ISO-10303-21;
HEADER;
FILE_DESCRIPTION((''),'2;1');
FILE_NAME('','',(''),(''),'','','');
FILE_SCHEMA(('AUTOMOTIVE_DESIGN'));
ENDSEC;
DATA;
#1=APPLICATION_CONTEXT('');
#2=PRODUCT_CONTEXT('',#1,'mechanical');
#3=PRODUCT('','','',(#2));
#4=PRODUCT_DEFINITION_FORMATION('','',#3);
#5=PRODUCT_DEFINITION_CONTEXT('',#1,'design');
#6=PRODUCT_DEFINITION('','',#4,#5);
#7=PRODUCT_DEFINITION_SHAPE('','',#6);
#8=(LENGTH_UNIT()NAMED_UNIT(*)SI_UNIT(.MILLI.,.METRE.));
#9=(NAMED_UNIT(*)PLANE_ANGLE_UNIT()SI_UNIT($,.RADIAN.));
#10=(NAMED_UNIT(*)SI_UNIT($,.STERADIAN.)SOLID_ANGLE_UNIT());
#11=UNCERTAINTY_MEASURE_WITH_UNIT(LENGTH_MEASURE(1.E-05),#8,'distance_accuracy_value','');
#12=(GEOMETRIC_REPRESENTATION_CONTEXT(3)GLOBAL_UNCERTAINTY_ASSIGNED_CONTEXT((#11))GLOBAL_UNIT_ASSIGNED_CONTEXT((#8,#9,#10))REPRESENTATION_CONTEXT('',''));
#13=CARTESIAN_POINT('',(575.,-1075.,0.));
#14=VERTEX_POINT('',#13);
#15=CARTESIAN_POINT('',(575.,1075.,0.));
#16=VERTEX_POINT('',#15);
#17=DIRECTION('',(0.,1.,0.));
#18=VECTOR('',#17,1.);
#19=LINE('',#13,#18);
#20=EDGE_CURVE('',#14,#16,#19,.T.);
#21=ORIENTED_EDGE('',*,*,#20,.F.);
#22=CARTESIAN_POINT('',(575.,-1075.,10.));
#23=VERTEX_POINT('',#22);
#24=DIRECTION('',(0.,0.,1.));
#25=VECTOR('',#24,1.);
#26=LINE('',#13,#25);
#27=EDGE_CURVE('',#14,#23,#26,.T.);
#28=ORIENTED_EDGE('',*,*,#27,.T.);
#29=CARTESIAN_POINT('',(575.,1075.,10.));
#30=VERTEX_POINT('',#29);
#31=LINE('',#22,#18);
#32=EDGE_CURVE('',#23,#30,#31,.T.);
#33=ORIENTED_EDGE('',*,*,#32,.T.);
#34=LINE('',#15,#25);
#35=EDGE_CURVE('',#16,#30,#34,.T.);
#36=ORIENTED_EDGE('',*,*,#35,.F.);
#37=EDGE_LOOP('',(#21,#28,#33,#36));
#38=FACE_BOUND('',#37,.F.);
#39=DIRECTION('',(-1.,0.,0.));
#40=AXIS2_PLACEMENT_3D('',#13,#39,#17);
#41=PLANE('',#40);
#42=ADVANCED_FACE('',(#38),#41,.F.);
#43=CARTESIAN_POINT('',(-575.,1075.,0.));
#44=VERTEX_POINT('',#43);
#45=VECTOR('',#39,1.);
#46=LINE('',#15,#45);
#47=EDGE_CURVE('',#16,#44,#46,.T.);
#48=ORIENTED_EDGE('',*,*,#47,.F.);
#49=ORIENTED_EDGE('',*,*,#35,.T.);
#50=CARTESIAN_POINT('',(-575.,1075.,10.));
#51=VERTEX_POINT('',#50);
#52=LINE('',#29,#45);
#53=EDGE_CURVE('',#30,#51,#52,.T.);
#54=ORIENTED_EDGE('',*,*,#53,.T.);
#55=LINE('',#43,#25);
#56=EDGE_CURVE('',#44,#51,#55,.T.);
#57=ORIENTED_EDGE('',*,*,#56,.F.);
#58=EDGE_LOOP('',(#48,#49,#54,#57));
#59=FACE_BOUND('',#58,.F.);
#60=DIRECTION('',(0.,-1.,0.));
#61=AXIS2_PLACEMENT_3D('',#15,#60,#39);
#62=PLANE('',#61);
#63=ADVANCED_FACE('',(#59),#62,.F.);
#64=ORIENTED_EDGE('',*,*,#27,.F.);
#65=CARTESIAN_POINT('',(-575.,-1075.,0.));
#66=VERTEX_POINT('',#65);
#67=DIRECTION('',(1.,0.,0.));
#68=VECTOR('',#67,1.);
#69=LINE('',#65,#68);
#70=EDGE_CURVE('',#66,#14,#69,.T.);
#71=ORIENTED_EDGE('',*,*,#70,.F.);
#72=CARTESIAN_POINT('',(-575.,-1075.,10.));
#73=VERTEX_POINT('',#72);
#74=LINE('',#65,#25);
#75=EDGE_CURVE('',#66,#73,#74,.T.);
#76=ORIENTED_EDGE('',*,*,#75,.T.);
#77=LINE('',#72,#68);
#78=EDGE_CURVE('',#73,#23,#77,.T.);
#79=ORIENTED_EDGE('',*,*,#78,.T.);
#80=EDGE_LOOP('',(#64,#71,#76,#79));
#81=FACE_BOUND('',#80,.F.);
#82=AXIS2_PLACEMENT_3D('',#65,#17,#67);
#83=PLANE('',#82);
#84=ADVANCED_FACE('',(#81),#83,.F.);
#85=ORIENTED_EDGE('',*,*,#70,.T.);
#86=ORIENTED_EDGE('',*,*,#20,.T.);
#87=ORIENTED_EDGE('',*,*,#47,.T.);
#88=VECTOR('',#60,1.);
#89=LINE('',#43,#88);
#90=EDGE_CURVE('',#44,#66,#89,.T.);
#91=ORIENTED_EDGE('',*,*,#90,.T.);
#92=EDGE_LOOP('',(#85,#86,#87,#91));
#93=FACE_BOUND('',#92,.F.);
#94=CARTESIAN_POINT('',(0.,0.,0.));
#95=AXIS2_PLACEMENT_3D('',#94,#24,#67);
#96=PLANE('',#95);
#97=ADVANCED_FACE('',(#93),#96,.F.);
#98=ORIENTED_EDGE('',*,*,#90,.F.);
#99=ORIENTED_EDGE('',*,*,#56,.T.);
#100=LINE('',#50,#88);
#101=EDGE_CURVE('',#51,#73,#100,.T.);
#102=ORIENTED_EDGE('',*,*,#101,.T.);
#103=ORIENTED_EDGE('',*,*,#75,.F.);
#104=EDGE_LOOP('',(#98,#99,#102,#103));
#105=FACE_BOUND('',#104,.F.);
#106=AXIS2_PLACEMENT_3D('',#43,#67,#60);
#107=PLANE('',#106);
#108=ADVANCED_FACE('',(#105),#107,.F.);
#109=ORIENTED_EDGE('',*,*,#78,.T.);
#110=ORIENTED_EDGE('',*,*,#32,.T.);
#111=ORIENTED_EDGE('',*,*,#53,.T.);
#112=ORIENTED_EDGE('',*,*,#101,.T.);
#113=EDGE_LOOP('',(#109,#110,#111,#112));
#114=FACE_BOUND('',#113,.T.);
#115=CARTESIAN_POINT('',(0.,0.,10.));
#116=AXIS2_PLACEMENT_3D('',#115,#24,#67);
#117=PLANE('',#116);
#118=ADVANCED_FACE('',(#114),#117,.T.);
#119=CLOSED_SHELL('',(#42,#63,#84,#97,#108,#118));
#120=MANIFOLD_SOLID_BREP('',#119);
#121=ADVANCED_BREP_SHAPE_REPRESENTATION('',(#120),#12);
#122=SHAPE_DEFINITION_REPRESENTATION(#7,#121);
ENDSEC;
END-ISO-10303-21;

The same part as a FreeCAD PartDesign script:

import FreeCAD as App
import Part
import Sketcher

V = App.Vector
Q = App.Units.Quantity

doc = App.newDocument("Part")
body = doc.addObject("PartDesign::Body", "Body")

# Sketch on XY plane
sketch1 = body.newObject("Sketcher::SketchObject", "Sketch")
sketch1.AttachmentSupport = (doc.getObject("XY_Plane"), [""])
sketch1.MapMode = "FlatFace"
sketch1.addGeometry([
    Part.LineSegment(V(-575, 1075, 0), V(-575, -1075, 0)),
    Part.LineSegment(V(-575, -1075, 0), V(575, -1075, 0)),
    Part.LineSegment(V(575, -1075, 0), V(575, 1075, 0)),
    Part.LineSegment(V(575, 1075, 0), V(-575, 1075, 0)),
], False)
sketch1.addConstraint([
    Sketcher.Constraint("Coincident", 0, 2, 1, 1),
    Sketcher.Constraint("Coincident", 1, 2, 2, 1),
    Sketcher.Constraint("Coincident", 2, 2, 3, 1),
    Sketcher.Constraint("Coincident", 3, 2, 0, 1),
    Sketcher.Constraint("Vertical", 0),
    Sketcher.Constraint("Horizontal", 1),
    Sketcher.Constraint("Vertical", 2),
    Sketcher.Constraint("Horizontal", 3),
    Sketcher.Constraint("Symmetric", 0, 2, 2, 2, -1, 1),
    Sketcher.Constraint("DistanceX", 1, 1, 1, 2, Q("1150 mm")),
    Sketcher.Constraint("DistanceY", 0, 2, 0, 1, Q("2150 mm")),
])
pad1 = body.newObject("PartDesign::Pad", "Pad")
pad1.Profile = sketch1
pad1.Length = 10

doc.recompute()
